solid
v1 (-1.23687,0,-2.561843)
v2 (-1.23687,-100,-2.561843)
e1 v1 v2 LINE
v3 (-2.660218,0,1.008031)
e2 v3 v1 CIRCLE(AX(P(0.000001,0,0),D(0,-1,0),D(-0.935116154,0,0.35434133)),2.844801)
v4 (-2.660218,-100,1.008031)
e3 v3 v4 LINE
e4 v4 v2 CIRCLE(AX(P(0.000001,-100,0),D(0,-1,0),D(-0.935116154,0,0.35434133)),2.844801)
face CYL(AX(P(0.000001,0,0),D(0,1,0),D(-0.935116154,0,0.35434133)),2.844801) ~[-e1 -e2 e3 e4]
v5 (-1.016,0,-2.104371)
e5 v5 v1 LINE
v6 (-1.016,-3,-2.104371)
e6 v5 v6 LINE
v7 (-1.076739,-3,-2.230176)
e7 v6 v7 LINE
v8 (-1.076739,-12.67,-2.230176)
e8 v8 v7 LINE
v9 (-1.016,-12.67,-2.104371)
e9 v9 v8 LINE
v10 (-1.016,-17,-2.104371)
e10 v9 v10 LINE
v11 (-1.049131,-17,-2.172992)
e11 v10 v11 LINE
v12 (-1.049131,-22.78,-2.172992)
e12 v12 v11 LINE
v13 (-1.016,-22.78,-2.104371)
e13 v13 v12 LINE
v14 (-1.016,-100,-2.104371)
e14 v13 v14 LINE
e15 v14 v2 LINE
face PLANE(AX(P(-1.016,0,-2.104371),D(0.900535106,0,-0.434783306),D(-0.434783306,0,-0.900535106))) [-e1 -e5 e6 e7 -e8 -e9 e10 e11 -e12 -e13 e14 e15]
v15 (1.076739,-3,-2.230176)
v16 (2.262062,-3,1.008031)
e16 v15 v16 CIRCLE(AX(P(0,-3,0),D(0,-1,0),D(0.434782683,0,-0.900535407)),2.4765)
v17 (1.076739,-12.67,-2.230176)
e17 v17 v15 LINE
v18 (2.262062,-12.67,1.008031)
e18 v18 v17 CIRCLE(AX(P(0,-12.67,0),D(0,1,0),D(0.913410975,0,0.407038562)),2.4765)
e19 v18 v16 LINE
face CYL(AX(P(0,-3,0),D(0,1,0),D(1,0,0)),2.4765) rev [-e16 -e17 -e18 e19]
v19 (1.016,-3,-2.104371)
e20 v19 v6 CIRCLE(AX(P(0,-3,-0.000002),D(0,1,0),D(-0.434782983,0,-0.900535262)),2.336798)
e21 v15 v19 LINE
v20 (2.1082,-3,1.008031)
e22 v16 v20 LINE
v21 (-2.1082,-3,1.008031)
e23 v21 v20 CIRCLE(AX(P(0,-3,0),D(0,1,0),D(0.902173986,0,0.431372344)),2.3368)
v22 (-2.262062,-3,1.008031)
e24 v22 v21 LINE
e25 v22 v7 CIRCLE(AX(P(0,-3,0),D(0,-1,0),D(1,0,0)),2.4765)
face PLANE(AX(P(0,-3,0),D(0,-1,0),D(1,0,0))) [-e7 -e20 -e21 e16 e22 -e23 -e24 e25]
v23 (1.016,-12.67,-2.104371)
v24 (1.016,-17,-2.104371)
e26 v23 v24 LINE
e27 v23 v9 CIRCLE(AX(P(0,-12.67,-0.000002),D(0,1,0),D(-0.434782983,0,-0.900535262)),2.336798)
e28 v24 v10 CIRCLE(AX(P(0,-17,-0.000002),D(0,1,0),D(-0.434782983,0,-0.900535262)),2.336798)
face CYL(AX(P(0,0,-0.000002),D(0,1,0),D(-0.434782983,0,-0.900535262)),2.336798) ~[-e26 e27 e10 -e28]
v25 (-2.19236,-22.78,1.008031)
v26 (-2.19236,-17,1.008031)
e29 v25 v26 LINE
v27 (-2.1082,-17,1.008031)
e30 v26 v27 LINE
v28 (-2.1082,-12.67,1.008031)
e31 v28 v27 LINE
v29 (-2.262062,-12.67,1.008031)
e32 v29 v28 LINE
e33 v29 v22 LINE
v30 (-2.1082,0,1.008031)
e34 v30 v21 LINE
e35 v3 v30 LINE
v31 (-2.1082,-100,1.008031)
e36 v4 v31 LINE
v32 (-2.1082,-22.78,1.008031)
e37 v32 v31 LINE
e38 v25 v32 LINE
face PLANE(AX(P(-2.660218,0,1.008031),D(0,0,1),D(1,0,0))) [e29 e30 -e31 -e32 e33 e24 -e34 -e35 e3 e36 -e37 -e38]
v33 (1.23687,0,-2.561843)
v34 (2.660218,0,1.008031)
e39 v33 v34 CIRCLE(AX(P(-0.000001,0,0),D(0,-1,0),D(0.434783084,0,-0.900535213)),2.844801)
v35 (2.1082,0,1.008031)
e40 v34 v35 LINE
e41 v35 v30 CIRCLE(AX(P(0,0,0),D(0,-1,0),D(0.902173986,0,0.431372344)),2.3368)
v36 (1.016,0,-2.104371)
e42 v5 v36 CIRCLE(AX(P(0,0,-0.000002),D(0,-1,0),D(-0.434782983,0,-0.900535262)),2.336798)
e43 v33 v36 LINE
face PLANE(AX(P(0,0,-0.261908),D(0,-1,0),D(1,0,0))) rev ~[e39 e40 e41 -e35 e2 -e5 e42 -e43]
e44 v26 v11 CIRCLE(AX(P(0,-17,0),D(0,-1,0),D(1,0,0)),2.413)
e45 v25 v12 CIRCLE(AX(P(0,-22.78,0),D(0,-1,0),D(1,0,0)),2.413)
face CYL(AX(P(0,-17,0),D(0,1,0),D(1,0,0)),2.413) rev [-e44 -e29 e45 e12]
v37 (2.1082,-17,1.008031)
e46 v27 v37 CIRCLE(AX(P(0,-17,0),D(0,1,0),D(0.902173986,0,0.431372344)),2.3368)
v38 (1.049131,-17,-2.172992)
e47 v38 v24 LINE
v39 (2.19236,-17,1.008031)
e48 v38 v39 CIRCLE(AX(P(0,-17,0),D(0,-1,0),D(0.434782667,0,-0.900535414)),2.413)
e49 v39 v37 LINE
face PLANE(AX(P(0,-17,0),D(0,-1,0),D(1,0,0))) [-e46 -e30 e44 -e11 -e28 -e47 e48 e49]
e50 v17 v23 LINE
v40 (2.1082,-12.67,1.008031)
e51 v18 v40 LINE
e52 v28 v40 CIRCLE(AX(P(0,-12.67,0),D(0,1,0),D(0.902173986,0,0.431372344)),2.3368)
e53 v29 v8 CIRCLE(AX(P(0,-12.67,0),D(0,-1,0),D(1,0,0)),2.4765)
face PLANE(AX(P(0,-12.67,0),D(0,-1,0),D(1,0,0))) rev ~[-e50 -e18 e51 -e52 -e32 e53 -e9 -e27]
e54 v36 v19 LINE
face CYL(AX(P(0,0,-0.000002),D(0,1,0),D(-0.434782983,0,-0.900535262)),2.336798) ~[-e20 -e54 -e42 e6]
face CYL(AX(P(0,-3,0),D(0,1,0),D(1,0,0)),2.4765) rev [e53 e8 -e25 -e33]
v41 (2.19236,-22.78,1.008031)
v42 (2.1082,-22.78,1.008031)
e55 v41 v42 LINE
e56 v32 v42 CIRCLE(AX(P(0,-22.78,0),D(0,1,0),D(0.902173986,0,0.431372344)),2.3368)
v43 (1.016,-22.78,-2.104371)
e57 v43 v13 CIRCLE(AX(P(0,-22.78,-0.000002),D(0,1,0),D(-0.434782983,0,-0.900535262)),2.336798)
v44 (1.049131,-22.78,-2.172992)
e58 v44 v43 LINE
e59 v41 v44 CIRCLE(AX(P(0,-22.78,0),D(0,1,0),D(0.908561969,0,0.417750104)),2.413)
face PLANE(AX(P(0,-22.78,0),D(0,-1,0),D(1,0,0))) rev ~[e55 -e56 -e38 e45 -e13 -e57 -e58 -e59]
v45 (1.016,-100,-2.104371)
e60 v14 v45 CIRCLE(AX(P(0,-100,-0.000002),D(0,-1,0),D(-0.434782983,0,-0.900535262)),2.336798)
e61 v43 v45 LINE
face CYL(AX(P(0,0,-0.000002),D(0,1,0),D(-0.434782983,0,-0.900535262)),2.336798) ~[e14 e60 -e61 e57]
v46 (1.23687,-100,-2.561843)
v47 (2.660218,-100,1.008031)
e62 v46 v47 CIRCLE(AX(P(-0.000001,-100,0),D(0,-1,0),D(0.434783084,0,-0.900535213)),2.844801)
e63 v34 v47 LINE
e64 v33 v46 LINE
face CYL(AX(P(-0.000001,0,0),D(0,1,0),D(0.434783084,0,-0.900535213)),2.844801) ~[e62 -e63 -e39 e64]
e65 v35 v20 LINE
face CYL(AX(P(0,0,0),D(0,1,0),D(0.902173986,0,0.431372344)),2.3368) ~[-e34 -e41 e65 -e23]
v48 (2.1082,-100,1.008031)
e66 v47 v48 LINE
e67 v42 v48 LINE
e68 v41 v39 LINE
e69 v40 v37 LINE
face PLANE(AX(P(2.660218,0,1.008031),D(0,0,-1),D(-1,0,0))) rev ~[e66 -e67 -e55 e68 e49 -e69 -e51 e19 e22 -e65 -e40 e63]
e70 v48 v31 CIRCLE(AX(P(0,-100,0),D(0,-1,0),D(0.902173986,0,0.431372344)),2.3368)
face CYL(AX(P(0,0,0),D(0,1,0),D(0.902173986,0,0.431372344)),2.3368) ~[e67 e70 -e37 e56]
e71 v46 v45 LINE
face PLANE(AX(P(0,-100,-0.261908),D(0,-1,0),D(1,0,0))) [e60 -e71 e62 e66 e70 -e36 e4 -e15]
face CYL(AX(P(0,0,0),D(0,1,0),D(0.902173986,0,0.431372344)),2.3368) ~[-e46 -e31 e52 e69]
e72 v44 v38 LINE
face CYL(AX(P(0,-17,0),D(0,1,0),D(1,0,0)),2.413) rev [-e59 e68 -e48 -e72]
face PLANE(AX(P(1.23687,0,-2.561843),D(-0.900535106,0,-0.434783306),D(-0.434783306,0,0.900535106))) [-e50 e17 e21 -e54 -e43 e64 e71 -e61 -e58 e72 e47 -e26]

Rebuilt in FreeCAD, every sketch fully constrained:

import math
import FreeCAD as App
import Part
import Sketcher
Q = App.Units.Quantity

doc = App.newDocument("Part")
body = doc.addObject("PartDesign::Body", "Body")

sketch1 = body.newObject("Sketcher::SketchObject", "Sketch")
sketch1.AttachmentSupport = (doc.getObject("XZ_Plane"), [""])
sketch1.MapMode = "FlatFace"
sketch1.AttachmentOffset = App.Placement(App.Vector(0, 0, 17), App.Rotation())
sketch1.addGeometry(Part.Circle(App.Vector(0, 0, 0), App.Vector(0, 0, 1), 2.4), False)
sketch1.addConstraint(Sketcher.Constraint("Coincident", 0, 3, -1, 1))
sketch1.addConstraint(Sketcher.Constraint("Diameter", 0, Q("0.19 in")))
pad1 = body.newObject("PartDesign::Pad", "Pad")
pad1.Profile = sketch1
pad1.Length = 5.78
body2 = doc.addObject("PartDesign::Body", "Body001")

sketch2 = body2.newObject("Sketcher::SketchObject", "Sketch001")
sketch2.AttachmentSupport = (doc.getObject("XZ_Plane001"), [""])
sketch2.MapMode = "FlatFace"
sketch2.AttachmentOffset = App.Placement(App.Vector(0, 0, 3), App.Rotation())
sketch2.addGeometry(Part.Circle(App.Vector(0, 0, 0), App.Vector(0, 0, 1), 2.5), False)
sketch2.addConstraint(Sketcher.Constraint("Coincident", 0, 3, -1, 1))
sketch2.addConstraint(Sketcher.Constraint("Diameter", 0, Q("0.195 in")))
pad2 = body2.newObject("PartDesign::Pad", "Pad001")
pad2.Profile = sketch2
pad2.Length = 9.67
body3 = doc.addObject("PartDesign::Body", "Body002")

sketch3 = body3.newObject("Sketcher::SketchObject", "Sketch002")
sketch3.AttachmentSupport = (doc.getObject("XZ_Plane002"), [""])
sketch3.MapMode = "FlatFace"
sketch3.addGeometry(Part.ArcOfCircle(Part.Circle(App.Vector(0, 0, 0), App.Vector(0, 0, 1), 2.3), math.radians(26), math.radians(154)), False)
sketch3.addGeometry(Part.LineSegment(App.Vector(-2.1, 1, 0), App.Vector(-2.7, 1, 0)), False)
sketch3.addGeometry(Part.ArcOfCircle(Part.Circle(App.Vector(0, 0, 0), App.Vector(0, 0, 1), 2.8), math.radians(159), math.radians(244)), False)
sketch3.addGeometry(Part.LineSegment(App.Vector(-1.2, -2.6, 0), App.Vector(-1, -2.1, 0)), False)
sketch3.addGeometry(Part.ArcOfCircle(Part.Circle(App.Vector(0, 0, 0), App.Vector(0, 0, 1), 2.3), math.radians(-116), math.radians(-64)), False)
sketch3.addGeometry(Part.LineSegment(App.Vector(1, -2.1, 0), App.Vector(1.2, -2.6, 0)), False)
sketch3.addGeometry(Part.ArcOfCircle(Part.Circle(App.Vector(0, 0, 0), App.Vector(0, 0, 1), 2.8), math.radians(-64), math.radians(21)), False)
sketch3.addGeometry(Part.LineSegment(App.Vector(2.7, 1, 0), App.Vector(2.1, 1, 0)), False)
sketch3.addConstraint(Sketcher.Constraint("Coincident", 0, 2, 1, 1))
sketch3.addConstraint(Sketcher.Constraint("Coincident", 1, 2, 2, 1))
sketch3.addConstraint(Sketcher.Constraint("Coincident", 2, 2, 3, 1))
sketch3.addConstraint(Sketcher.Constraint("Coincident", 3, 2, 4, 1))
sketch3.addConstraint(Sketcher.Constraint("Coincident", 4, 2, 5, 1))
sketch3.addConstraint(Sketcher.Constraint("Coincident", 5, 2, 6, 1))
sketch3.addConstraint(Sketcher.Constraint("Coincident", 6, 2, 7, 1))
sketch3.addConstraint(Sketcher.Constraint("Coincident", 7, 2, 0, 1))
sketch3.addConstraint(Sketcher.Constraint("Horizontal", 1))
sketch3.addConstraint(Sketcher.Constraint("Horizontal", 7))
sketch3.addConstraint(Sketcher.Constraint("Coincident", 0, 3, -1, 1))
sketch3.addConstraint(Sketcher.Constraint("Coincident", 2, 3, -1, 1))
sketch3.addConstraint(Sketcher.Constraint("Coincident", 4, 3, -1, 1))
sketch3.addConstraint(Sketcher.Constraint("Coincident", 6, 3, -1, 1))
sketch3.addConstraint(Sketcher.Constraint("Equal", 0, 4))
sketch3.addConstraint(Sketcher.Constraint("Equal", 2, 6))
sketch3.addConstraint(Sketcher.Constraint("Horizontal", 3, 2, 4, 2))
sketch3.addConstraint(Sketcher.Constraint("Horizontal", 2, 2, 5, 2))
sketch3.addConstraint(Sketcher.Constraint("Horizontal", 1, 2, 6, 2))
sketch3.addConstraint(Sketcher.Constraint("Radius", 0, Q("0.092 in")))
sketch3.addConstraint(Sketcher.Constraint("Radius", 2, Q("0.112 in")))
sketch3.addConstraint(Sketcher.Constraint("DistanceX", 3, 2, -1, 1, Q("0.04 in")))
sketch3.addConstraint(Sketcher.Constraint("DistanceX", 0, 2, -1, 1, Q("0.083 in")))
sketch3.addConstraint(Sketcher.Constraint("DistanceX", 2, 2, -1, 1, Q("1.23687 mm")))
pad3 = body3.newObject("PartDesign::Pad", "Pad002")
pad3.Profile = sketch3
pad3.Length = 100
doc.recompute()

boolean = body3.newObject("PartDesign::Boolean", "Boolean")
boolean.Type = "Cut"
boolean.addObjects([body2])
doc.recompute()

boolean2 = body3.newObject("PartDesign::Boolean", "Boolean001")
boolean2.Type = "Cut"
boolean2.addObjects([body])

doc.recompute()
